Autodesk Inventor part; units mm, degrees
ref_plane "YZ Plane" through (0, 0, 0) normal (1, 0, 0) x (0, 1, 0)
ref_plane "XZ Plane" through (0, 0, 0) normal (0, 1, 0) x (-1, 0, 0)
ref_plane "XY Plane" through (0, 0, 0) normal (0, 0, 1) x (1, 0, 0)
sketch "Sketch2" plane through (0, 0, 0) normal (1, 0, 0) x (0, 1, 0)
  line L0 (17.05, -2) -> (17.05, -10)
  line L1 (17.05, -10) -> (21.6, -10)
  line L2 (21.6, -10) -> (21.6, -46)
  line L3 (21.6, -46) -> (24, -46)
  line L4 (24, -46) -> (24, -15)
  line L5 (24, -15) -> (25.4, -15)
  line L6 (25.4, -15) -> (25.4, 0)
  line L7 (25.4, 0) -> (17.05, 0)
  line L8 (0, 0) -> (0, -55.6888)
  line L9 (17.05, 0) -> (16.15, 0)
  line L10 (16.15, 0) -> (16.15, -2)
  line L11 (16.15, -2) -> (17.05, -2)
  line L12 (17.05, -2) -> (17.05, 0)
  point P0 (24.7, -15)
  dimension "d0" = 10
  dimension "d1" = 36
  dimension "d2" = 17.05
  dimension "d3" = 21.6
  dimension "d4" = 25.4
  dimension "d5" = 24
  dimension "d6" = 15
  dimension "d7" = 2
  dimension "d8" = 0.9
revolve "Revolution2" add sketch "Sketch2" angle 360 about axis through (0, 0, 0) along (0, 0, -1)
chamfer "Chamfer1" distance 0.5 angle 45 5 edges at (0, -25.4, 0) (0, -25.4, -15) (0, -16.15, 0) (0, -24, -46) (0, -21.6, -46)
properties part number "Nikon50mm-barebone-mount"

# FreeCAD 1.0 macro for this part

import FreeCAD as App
import Part
import Sketcher
Q = App.Units.Quantity


def edges_at(feature, points):
    """Names of the edges that pass closest to the given points."""
    edges = feature.Shape.Edges
    near = lambda p: min(range(len(edges)), key=lambda i: edges[i].distToShape(Part.Vertex(*p))[0])
    return sorted({f"Edge{near(p) + 1}" for p in points})

doc = App.newDocument("Part")
body = doc.addObject("PartDesign::Body", "Body")

sketch1 = body.newObject("Sketcher::SketchObject", "Sketch")
sketch1.AttachmentSupport = (doc.getObject("YZ_Plane"), [""])
sketch1.MapMode = "FlatFace"
sketch1.addGeometry([
    Part.LineSegment(App.Vector(25.4, 0, 0), App.Vector(16.1, 0, 0)),
    Part.LineSegment(App.Vector(16.1, 0, 0), App.Vector(16.1, -2, 0)),
    Part.LineSegment(App.Vector(16.1, -2, 0), App.Vector(17.1, -2, 0)),
    Part.LineSegment(App.Vector(17.1, -2, 0), App.Vector(17.1, -10, 0)),
    Part.LineSegment(App.Vector(17.1, -10, 0), App.Vector(21.6, -10, 0)),
    Part.LineSegment(App.Vector(21.6, -10, 0), App.Vector(21.6, -46, 0)),
    Part.LineSegment(App.Vector(21.6, -46, 0), App.Vector(24, -46, 0)),
    Part.LineSegment(App.Vector(24, -46, 0), App.Vector(24, -15, 0)),
    Part.LineSegment(App.Vector(24, -15, 0), App.Vector(25.4, -15, 0)),
    Part.LineSegment(App.Vector(25.4, -15, 0), App.Vector(25.4, 0, 0)),
], False)
sketch1.addConstraint([
    Sketcher.Constraint("Coincident", 0, 2, 1, 1),
    Sketcher.Constraint("Coincident", 1, 2, 2, 1),
    Sketcher.Constraint("Coincident", 2, 2, 3, 1),
    Sketcher.Constraint("Coincident", 3, 2, 4, 1),
    Sketcher.Constraint("Coincident", 4, 2, 5, 1),
    Sketcher.Constraint("Coincident", 5, 2, 6, 1),
    Sketcher.Constraint("Coincident", 6, 2, 7, 1),
    Sketcher.Constraint("Coincident", 7, 2, 8, 1),
    Sketcher.Constraint("Coincident", 8, 2, 9, 1),
    Sketcher.Constraint("Coincident", 9, 2, 0, 1),
    Sketcher.Constraint("Horizontal", 0),
    Sketcher.Constraint("Vertical", 1),
    Sketcher.Constraint("Horizontal", 2),
    Sketcher.Constraint("Vertical", 3),
    Sketcher.Constraint("Horizontal", 4),
    Sketcher.Constraint("Vertical", 5),
    Sketcher.Constraint("Horizontal", 6),
    Sketcher.Constraint("Vertical", 7),
    Sketcher.Constraint("Horizontal", 8),
    Sketcher.Constraint("Vertical", 9),
    Sketcher.Constraint("PointOnObject", 0, 2, -1),
    Sketcher.Constraint("DistanceY", 1, 2, 1, 1, Q("2 mm")),
    Sketcher.Constraint("DistanceY", 5, 2, 5, 1, Q("36 mm")),
    Sketcher.Constraint("DistanceY", 9, 1, 9, 2, Q("15 mm")),
    Sketcher.Constraint("DistanceX", 2, 1, 2, 2, Q("0.9 mm")),
    Sketcher.Constraint("DistanceY", 3, 2, -1, 1, Q("10 mm")),
    Sketcher.Constraint("DistanceX", -1, 1, 6, 2, Q("24 mm")),
    Sketcher.Constraint("DistanceX", -1, 1, 4, 2, Q("21.6 mm")),
    Sketcher.Constraint("DistanceX", -1, 1, 8, 2, Q("25.4 mm")),
    Sketcher.Constraint("DistanceX", -1, 1, 2, 2, Q("17.05 mm")),
])
revolution = body.newObject("PartDesign::Revolution", "Revolution")
revolution.Profile = sketch1
revolution.ReferenceAxis = (sketch1, ["V_Axis"])
revolution.Angle = 360
doc.recompute()

chamfer = body.newObject("PartDesign::Chamfer", "Chamfer")
chamfer.Base = (revolution, edges_at(revolution, [
    (0, -25.4, 0),
    (0, -25.4, -15),
    (0, -16.15, 0),
    (0, -24, -46),
    (0, -21.6, -46),
]))
chamfer.Size = 0.5

doc.recompute()
